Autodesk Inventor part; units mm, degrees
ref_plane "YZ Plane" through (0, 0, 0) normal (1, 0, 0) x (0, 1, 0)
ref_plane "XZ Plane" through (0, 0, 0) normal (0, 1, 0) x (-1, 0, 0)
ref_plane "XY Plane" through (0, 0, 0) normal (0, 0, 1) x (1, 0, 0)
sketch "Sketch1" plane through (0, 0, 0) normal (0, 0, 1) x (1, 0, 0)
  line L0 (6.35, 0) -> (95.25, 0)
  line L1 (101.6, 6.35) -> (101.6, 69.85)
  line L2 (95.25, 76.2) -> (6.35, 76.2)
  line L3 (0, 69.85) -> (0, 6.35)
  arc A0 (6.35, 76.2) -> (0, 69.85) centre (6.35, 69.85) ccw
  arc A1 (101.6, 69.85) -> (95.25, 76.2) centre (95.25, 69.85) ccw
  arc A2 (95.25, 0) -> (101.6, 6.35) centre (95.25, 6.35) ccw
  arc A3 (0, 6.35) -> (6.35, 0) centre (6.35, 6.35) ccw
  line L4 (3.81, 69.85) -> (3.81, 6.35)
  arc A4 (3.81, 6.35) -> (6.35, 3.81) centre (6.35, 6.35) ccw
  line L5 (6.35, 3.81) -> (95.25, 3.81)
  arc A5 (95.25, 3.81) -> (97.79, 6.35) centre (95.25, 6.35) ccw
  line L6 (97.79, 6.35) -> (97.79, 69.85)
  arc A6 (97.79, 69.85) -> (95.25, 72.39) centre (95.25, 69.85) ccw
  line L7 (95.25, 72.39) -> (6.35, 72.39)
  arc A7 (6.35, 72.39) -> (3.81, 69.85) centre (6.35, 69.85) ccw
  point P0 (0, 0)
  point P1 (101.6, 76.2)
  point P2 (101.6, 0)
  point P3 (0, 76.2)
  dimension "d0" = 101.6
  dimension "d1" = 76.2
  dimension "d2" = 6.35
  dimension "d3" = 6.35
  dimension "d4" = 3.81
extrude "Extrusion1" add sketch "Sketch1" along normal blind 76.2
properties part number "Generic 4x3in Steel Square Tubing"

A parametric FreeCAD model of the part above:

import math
import FreeCAD as App
import Part
import Sketcher
from FreeCAD import Vector
Q = App.Units.Quantity

doc = App.newDocument("Part")
body = doc.addObject("PartDesign::Body", "Body")

# Sketch on XY plane
sketch1 = body.newObject("Sketcher::SketchObject", "Sketch")
sketch1.AttachmentSupport = (doc.getObject("XY_Plane"), [""])
sketch1.MapMode = "FlatFace"
sketch1.addGeometry(Part.ArcOfCircle(Part.Circle(Vector(6.3, 6.3, 0), Vector(0, 0, 1), 6.3), math.radians(180), math.radians(270)), False)
sketch1.addGeometry(Part.LineSegment(Vector(6.3, 0, 0), Vector(95.2, 0, 0)), False)
sketch1.addGeometry(Part.ArcOfCircle(Part.Circle(Vector(95.2, 6.3, 0), Vector(0, 0, 1), 6.3), math.radians(-90), math.radians(0)), False)
sketch1.addGeometry(Part.LineSegment(Vector(101.6, 6.3, 0), Vector(101.6, 69.8, 0)), False)
sketch1.addGeometry(Part.ArcOfCircle(Part.Circle(Vector(95.2, 69.8, 0), Vector(0, 0, 1), 6.3), math.radians(0), math.radians(90)), False)
sketch1.addGeometry(Part.LineSegment(Vector(95.2, 76.2, 0), Vector(6.3, 76.2, 0)), False)
sketch1.addGeometry(Part.ArcOfCircle(Part.Circle(Vector(6.3, 69.8, 0), Vector(0, 0, 1), 6.4), math.radians(90), math.radians(180)), False)
sketch1.addGeometry(Part.LineSegment(Vector(0, 69.8, 0), Vector(0, 6.3, 0)), False)
sketch1.addGeometry(Part.LineSegment(Vector(3.8, 6.3, 0), Vector(3.8, 69.8, 0)), False)
sketch1.addGeometry(Part.ArcOfCircle(Part.Circle(Vector(6.3, 69.8, 0), Vector(0, 0, 1), 2.5), math.radians(90), math.radians(180)), False)
sketch1.addGeometry(Part.LineSegment(Vector(6.3, 72.4, 0), Vector(95.2, 72.4, 0)), False)
sketch1.addGeometry(Part.ArcOfCircle(Part.Circle(Vector(95.2, 69.8, 0), Vector(0, 0, 1), 2.5), math.radians(0), math.radians(90)), False)
sketch1.addGeometry(Part.LineSegment(Vector(97.8, 69.8, 0), Vector(97.8, 6.3, 0)), False)
sketch1.addGeometry(Part.ArcOfCircle(Part.Circle(Vector(95.2, 6.3, 0), Vector(0, 0, 1), 2.5), math.radians(-90), math.radians(0)), False)
sketch1.addGeometry(Part.LineSegment(Vector(95.2, 3.8, 0), Vector(6.3, 3.8, 0)), False)
sketch1.addGeometry(Part.ArcOfCircle(Part.Circle(Vector(6.3, 6.3, 0), Vector(0, 0, 1), 2.5), math.radians(180), math.radians(270)), False)
sketch1.addConstraint(Sketcher.Constraint("Tangent", 0, 2, 1, 1))
sketch1.addConstraint(Sketcher.Constraint("Tangent", 1, 2, 2, 1))
sketch1.addConstraint(Sketcher.Constraint("Tangent", 2, 2, 3, 1))
sketch1.addConstraint(Sketcher.Constraint("Tangent", 3, 2, 4, 1))
sketch1.addConstraint(Sketcher.Constraint("Tangent", 4, 2, 5, 1))
sketch1.addConstraint(Sketcher.Constraint("Tangent", 5, 2, 6, 1))
sketch1.addConstraint(Sketcher.Constraint("Tangent", 6, 2, 7, 1))
sketch1.addConstraint(Sketcher.Constraint("Tangent", 7, 2, 0, 1))
sketch1.addConstraint(Sketcher.Constraint("Tangent", 8, 2, 9, 2))
sketch1.addConstraint(Sketcher.Constraint("Tangent", 9, 1, 10, 1))
sketch1.addConstraint(Sketcher.Constraint("Tangent", 10, 2, 11, 2))
sketch1.addConstraint(Sketcher.Constraint("Tangent", 11, 1, 12, 1))
sketch1.addConstraint(Sketcher.Constraint("Tangent", 12, 2, 13, 2))
sketch1.addConstraint(Sketcher.Constraint("Tangent", 13, 1, 14, 1))
sketch1.addConstraint(Sketcher.Constraint("Tangent", 14, 2, 15, 2))
sketch1.addConstraint(Sketcher.Constraint("Tangent", 15, 1, 8, 1))
sketch1.addConstraint(Sketcher.Constraint("Horizontal", 1))
sketch1.addConstraint(Sketcher.Constraint("Vertical", 3))
sketch1.addConstraint(Sketcher.Constraint("Horizontal", 5))
sketch1.addConstraint(Sketcher.Constraint("Vertical", 7))
sketch1.addConstraint(Sketcher.Constraint("Vertical", 8))
sketch1.addConstraint(Sketcher.Constraint("Horizontal", 10))
sketch1.addConstraint(Sketcher.Constraint("Vertical", 12))
sketch1.addConstraint(Sketcher.Constraint("Horizontal", 14))
sketch1.addConstraint(Sketcher.Constraint("Coincident", 9, 3, 6, 3))
sketch1.addConstraint(Sketcher.Constraint("Coincident", 11, 3, 4, 3))
sketch1.addConstraint(Sketcher.Constraint("Coincident", 13, 3, 2, 3))
sketch1.addConstraint(Sketcher.Constraint("Equal", 0, 2))
sketch1.addConstraint(Sketcher.Constraint("Equal", 2, 4))
sketch1.addConstraint(Sketcher.Constraint("Equal", 4, 6))
sketch1.addConstraint(Sketcher.Constraint("Equal", 13, 15))
sketch1.addConstraint(Sketcher.Constraint("PointOnObject", 0, 2, -1))
sketch1.addConstraint(Sketcher.Constraint("PointOnObject", 6, 2, -2))
sketch1.addConstraint(Sketcher.Constraint("Radius", 0, Q("0.25 in")))
sketch1.addConstraint(Sketcher.Constraint("DistanceX", -1, 1, 2, 2, Q("4 in")))
sketch1.addConstraint(Sketcher.Constraint("DistanceY", -1, 1, 4, 2, Q("3 in")))
sketch1.addConstraint(Sketcher.Constraint("Radius", 9, Q("0.1 in")))
pad1 = body.newObject("PartDesign::Pad", "Pad")
pad1.Profile = sketch1
pad1.Length = Q("3 in")

doc.recompute()
